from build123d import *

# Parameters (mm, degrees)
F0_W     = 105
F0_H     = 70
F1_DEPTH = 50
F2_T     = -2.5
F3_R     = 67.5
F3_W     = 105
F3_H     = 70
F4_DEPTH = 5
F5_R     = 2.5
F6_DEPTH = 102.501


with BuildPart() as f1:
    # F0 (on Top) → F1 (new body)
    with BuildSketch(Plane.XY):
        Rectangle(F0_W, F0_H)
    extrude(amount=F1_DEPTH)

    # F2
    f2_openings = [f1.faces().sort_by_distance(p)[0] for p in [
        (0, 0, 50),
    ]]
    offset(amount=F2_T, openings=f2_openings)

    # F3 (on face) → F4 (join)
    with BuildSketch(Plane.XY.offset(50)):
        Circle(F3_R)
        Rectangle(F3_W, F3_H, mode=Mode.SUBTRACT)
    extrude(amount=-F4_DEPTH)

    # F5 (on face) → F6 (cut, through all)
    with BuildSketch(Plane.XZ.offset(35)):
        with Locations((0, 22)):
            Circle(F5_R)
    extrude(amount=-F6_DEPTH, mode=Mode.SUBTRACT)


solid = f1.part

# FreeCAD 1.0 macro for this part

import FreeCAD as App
import Part
import Sketcher


def faces_at(feature, points):
    """Names of the faces that lie closest to the given points."""
    faces = feature.Shape.Faces
    near = lambda p: min(range(len(faces)), key=lambda i: faces[i].distToShape(Part.Vertex(*p))[0])
    return sorted({f"Face{near(p) + 1}" for p in points})


def add_polygon(sketch, points):
    """Adds a closed chain of lines whose ends are joined by coincident constraints."""
    first, n = sketch.GeometryCount, len(points)
    for a, b in zip(points, points[1:] + points[:1]):
        sketch.addGeometry(Part.LineSegment(App.Vector(*a, 0), App.Vector(*b, 0)), False)
    for i in range(n):
        sketch.addConstraint(Sketcher.Constraint("Coincident", first + i, 2, first + (i + 1) % n, 1))

doc = App.newDocument("Part")
params = doc.addObject("Spreadsheet::Sheet", "Params")
for row, (alias, value) in enumerate([
    ("sketch1_width", "105 mm"),
    ("sketch1_height", "70 mm"),
    ("pad1_length", "50 mm"),
    ("thickness_wall", "2.5 mm"),
    ("sketch2_diameter", "135 mm"),
    ("sketch2_width", "105 mm"),
    ("sketch2_height", "70 mm"),
    ("pad2_length", "5 mm"),
    ("sketch3_diameter", "5 mm"),
], start=1):
    params.set(f"A{row}", alias)
    params.set(f"B{row}", "=" + value)
    params.setAlias(f"B{row}", alias)

body = doc.addObject("PartDesign::Body", "Body")

# Sketch on XY plane
sketch1 = body.newObject("Sketcher::SketchObject", "Sketch")
sketch1.AttachmentSupport = (doc.getObject("XY_Plane"), [""])
sketch1.MapMode = "FlatFace"
add_polygon(sketch1, [(-52, 35), (-52, -35), (52, -35), (52, 35)])  # lines 0-3
sketch1.addConstraint([
    Sketcher.Constraint("Vertical", 0),
    Sketcher.Constraint("Horizontal", 1),
    Sketcher.Constraint("Vertical", 2),
    Sketcher.Constraint("Horizontal", 3),
    Sketcher.Constraint("Symmetric", 0, 2, 2, 2, -1, 1),
    Sketcher.Constraint("DistanceX", 1, 1, 1, 2, 105.0),
    Sketcher.Constraint("DistanceY", 0, 2, 0, 1, 70.0),
])
sketch1.setExpression("Constraints[9]", "Params.sketch1_width")
sketch1.setExpression("Constraints[10]", "Params.sketch1_height")
pad1 = body.newObject("PartDesign::Pad", "Pad")
pad1.Profile = sketch1
pad1.setExpression("Length", "Params.pad1_length")
doc.recompute()

thickness = body.newObject("PartDesign::Thickness", "Thickness")
thickness.Base = (pad1, faces_at(pad1, [(0, 0, 50)]))
thickness.setExpression("Value", "Params.thickness_wall")
thickness.Reversed = True
thickness.Join = "Arc"

# Sketch on XY plane
sketch2 = body.newObject("Sketcher::SketchObject", "Sketch001")
sketch2.AttachmentSupport = (doc.getObject("XY_Plane"), [""])
sketch2.MapMode = "FlatFace"
sketch2.AttachmentOffset = App.Placement(App.Vector(0, 0, 50), App.Rotation())
sketch2.addGeometry(Part.Circle(App.Vector(0, 0, 0), App.Vector(0, 0, 1), 68), False)  # 0
add_polygon(sketch2, [(52, -35), (-52, -35), (-52, 35), (52, 35)])  # lines 1-4
sketch2.addConstraint([
    Sketcher.Constraint("Horizontal", 1),
    Sketcher.Constraint("Vertical", 2),
    Sketcher.Constraint("Horizontal", 3),
    Sketcher.Constraint("Vertical", 4),
    Sketcher.Constraint("Coincident", 0, 3, -1, 1),
    Sketcher.Constraint("Symmetric", 1, 2, 3, 2, -1, 1),
    Sketcher.Constraint("Diameter", 0, 135.0),
    Sketcher.Constraint("DistanceX", 1, 2, 1, 1, 105.0),
    Sketcher.Constraint("DistanceY", 2, 1, 2, 2, 70.0),
])
sketch2.setExpression("Constraints[10]", "Params.sketch2_diameter")
sketch2.setExpression("Constraints[11]", "Params.sketch2_width")
sketch2.setExpression("Constraints[12]", "Params.sketch2_height")
pad2 = body.newObject("PartDesign::Pad", "Pad001")
pad2.Profile = sketch2
pad2.setExpression("Length", "Params.pad2_length")
pad2.Reversed = True

# Sketch on XZ plane
sketch3 = body.newObject("Sketcher::SketchObject", "Sketch002")
sketch3.AttachmentSupport = (doc.getObject("XZ_Plane"), [""])
sketch3.MapMode = "FlatFace"
sketch3.AttachmentOffset = App.Placement(App.Vector(0, 0, 35), App.Rotation())
sketch3.addGeometry(Part.Circle(App.Vector(0, 22, 0), App.Vector(0, 0, 1), 2.5), False)
sketch3.addConstraint([
    Sketcher.Constraint("PointOnObject", 0, 3, -2),
    Sketcher.Constraint("Diameter", 0, 5.0),
    Sketcher.Constraint("DistanceY", -1, 1, 0, 3, 22.0),
])
sketch3.setExpression("Constraints[1]", "Params.sketch3_diameter")
pocket1 = body.newObject("PartDesign::Pocket", "Pocket")
pocket1.Profile = sketch3
pocket1.Type = "ThroughAll"

doc.recompute()
